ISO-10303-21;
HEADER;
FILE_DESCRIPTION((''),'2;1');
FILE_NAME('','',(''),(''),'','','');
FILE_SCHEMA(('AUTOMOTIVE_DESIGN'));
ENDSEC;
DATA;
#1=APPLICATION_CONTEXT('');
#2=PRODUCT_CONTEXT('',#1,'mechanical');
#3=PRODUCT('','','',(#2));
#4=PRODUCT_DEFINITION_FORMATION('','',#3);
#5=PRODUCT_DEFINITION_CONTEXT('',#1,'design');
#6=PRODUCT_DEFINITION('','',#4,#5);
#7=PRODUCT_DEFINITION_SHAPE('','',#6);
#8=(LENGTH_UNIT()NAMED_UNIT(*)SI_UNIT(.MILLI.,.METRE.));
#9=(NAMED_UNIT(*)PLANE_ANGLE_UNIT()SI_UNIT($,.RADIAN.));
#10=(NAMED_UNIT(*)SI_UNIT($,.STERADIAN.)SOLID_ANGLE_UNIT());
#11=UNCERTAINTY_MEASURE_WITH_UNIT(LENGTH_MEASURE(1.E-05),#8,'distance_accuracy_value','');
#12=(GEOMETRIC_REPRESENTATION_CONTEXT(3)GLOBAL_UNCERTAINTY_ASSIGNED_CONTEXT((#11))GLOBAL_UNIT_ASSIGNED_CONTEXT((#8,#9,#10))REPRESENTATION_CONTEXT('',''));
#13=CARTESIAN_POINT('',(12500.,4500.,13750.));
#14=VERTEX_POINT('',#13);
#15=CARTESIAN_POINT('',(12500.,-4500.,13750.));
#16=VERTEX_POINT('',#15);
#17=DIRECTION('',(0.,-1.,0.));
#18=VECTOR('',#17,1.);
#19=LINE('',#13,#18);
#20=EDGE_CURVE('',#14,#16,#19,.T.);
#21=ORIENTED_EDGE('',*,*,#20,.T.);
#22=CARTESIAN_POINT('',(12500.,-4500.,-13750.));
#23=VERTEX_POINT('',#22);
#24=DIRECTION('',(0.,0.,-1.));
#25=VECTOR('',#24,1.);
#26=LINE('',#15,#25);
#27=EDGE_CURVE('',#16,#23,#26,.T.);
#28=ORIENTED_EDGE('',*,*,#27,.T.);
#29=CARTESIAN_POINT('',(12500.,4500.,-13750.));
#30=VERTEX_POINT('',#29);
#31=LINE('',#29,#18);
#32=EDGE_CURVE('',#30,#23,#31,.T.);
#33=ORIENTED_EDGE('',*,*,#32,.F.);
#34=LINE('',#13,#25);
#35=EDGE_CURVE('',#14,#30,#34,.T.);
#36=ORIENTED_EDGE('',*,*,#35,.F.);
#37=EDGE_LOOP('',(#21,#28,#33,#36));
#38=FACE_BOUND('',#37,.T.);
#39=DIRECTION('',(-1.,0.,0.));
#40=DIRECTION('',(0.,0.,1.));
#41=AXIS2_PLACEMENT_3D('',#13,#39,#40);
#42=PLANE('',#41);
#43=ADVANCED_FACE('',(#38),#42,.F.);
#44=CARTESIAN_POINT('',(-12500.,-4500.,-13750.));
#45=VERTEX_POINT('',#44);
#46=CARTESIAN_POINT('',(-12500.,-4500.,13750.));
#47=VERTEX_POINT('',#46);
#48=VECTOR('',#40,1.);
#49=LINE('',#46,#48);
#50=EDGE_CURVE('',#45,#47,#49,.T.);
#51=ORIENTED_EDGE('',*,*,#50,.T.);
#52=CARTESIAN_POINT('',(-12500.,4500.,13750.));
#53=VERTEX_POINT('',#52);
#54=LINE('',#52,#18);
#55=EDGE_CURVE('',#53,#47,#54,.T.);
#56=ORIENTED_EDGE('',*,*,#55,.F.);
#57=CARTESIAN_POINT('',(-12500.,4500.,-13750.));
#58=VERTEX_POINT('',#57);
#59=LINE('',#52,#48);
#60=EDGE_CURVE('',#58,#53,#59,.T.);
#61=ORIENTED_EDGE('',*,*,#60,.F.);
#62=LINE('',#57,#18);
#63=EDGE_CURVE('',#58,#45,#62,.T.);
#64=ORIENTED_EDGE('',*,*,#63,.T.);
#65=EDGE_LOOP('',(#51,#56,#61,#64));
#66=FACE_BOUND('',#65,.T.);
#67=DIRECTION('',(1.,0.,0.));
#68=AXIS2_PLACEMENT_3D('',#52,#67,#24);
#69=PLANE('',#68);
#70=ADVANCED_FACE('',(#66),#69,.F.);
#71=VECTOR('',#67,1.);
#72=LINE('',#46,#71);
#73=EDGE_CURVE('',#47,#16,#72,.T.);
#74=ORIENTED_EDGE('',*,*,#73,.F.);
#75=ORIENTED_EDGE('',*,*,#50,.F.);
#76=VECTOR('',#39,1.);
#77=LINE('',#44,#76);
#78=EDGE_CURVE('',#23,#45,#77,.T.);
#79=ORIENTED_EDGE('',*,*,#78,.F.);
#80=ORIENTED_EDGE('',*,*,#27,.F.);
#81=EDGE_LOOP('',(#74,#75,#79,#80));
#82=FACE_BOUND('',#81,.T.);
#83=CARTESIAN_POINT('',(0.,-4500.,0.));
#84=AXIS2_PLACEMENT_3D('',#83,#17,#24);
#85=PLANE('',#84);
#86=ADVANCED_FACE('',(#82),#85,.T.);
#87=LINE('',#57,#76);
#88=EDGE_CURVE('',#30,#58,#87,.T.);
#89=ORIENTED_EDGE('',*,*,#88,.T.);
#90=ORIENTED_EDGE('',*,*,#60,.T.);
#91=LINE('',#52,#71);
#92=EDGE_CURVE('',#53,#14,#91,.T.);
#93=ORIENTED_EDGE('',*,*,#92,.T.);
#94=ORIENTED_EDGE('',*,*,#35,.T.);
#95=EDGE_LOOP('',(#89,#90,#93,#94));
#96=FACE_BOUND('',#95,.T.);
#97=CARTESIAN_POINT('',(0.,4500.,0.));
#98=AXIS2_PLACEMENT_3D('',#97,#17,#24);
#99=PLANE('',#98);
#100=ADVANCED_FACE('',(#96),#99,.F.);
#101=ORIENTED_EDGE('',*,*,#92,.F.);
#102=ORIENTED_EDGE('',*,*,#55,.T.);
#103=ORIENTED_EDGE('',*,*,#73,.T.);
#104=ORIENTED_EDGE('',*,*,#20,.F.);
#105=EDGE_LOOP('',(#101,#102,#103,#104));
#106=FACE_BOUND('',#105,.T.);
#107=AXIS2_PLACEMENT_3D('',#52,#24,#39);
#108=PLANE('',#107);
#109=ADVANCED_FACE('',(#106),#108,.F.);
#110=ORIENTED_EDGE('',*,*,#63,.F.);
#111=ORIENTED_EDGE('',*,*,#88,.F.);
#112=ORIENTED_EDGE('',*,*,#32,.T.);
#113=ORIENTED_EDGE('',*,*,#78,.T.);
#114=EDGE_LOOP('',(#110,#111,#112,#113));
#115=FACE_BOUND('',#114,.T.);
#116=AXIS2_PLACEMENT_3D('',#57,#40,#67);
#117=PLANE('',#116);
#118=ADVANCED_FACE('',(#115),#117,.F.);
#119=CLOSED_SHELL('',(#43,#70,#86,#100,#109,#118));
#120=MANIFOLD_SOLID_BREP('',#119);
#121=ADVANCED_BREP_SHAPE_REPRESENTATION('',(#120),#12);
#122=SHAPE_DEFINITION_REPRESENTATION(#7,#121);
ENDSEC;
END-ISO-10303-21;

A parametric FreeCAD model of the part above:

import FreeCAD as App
import Part
import Sketcher


def add_polygon(sketch, points):
    """Adds a closed chain of lines whose ends are joined by coincident constraints."""
    first, n = sketch.GeometryCount, len(points)
    for a, b in zip(points, points[1:] + points[:1]):
        sketch.addGeometry(Part.LineSegment(App.Vector(*a, 0), App.Vector(*b, 0)), False)
    for i in range(n):
        sketch.addConstraint(Sketcher.Constraint("Coincident", first + i, 2, first + (i + 1) % n, 1))

doc = App.newDocument("Part")
params = doc.addObject("Spreadsheet::Sheet", "Params")
for row, (alias, value) in enumerate([
    ("sketch1_width", "25000 mm"),
    ("sketch1_height", "27500 mm"),
    ("pad1_length", "9000 mm"),
], start=1):
    params.set(f"A{row}", alias)
    params.set(f"B{row}", "=" + value)
    params.setAlias(f"B{row}", alias)

body = doc.addObject("PartDesign::Body", "Body")

# Sketch on XZ plane
sketch1 = body.newObject("Sketcher::SketchObject", "Sketch")
sketch1.AttachmentSupport = (doc.getObject("XZ_Plane"), [""])
sketch1.MapMode = "FlatFace"
add_polygon(sketch1, [(-12500, -13750), (-12500, 13750), (12500, 13750), (12500, -13750)])  # lines 0-3
sketch1.addConstraint(Sketcher.Constraint("Vertical", 0))
sketch1.addConstraint(Sketcher.Constraint("Horizontal", 1))
sketch1.addConstraint(Sketcher.Constraint("Vertical", 2))
sketch1.addConstraint(Sketcher.Constraint("Horizontal", 3))
sketch1.addConstraint(Sketcher.Constraint("Symmetric", 0, 2, 2, 2, -1, 1))
sketch1.addConstraint(Sketcher.Constraint("DistanceX", 1, 1, 1, 2, 25000.0))
sketch1.addConstraint(Sketcher.Constraint("DistanceY", 0, 1, 0, 2, 27500.0))
sketch1.setExpression("Constraints[9]", "Params.sketch1_width")
sketch1.setExpression("Constraints[10]", "Params.sketch1_height")
pad1 = body.newObject("PartDesign::Pad", "Pad")
pad1.Profile = sketch1
pad1.setExpression("Length", "Params.pad1_length")
pad1.Midplane = True

doc.recompute()
